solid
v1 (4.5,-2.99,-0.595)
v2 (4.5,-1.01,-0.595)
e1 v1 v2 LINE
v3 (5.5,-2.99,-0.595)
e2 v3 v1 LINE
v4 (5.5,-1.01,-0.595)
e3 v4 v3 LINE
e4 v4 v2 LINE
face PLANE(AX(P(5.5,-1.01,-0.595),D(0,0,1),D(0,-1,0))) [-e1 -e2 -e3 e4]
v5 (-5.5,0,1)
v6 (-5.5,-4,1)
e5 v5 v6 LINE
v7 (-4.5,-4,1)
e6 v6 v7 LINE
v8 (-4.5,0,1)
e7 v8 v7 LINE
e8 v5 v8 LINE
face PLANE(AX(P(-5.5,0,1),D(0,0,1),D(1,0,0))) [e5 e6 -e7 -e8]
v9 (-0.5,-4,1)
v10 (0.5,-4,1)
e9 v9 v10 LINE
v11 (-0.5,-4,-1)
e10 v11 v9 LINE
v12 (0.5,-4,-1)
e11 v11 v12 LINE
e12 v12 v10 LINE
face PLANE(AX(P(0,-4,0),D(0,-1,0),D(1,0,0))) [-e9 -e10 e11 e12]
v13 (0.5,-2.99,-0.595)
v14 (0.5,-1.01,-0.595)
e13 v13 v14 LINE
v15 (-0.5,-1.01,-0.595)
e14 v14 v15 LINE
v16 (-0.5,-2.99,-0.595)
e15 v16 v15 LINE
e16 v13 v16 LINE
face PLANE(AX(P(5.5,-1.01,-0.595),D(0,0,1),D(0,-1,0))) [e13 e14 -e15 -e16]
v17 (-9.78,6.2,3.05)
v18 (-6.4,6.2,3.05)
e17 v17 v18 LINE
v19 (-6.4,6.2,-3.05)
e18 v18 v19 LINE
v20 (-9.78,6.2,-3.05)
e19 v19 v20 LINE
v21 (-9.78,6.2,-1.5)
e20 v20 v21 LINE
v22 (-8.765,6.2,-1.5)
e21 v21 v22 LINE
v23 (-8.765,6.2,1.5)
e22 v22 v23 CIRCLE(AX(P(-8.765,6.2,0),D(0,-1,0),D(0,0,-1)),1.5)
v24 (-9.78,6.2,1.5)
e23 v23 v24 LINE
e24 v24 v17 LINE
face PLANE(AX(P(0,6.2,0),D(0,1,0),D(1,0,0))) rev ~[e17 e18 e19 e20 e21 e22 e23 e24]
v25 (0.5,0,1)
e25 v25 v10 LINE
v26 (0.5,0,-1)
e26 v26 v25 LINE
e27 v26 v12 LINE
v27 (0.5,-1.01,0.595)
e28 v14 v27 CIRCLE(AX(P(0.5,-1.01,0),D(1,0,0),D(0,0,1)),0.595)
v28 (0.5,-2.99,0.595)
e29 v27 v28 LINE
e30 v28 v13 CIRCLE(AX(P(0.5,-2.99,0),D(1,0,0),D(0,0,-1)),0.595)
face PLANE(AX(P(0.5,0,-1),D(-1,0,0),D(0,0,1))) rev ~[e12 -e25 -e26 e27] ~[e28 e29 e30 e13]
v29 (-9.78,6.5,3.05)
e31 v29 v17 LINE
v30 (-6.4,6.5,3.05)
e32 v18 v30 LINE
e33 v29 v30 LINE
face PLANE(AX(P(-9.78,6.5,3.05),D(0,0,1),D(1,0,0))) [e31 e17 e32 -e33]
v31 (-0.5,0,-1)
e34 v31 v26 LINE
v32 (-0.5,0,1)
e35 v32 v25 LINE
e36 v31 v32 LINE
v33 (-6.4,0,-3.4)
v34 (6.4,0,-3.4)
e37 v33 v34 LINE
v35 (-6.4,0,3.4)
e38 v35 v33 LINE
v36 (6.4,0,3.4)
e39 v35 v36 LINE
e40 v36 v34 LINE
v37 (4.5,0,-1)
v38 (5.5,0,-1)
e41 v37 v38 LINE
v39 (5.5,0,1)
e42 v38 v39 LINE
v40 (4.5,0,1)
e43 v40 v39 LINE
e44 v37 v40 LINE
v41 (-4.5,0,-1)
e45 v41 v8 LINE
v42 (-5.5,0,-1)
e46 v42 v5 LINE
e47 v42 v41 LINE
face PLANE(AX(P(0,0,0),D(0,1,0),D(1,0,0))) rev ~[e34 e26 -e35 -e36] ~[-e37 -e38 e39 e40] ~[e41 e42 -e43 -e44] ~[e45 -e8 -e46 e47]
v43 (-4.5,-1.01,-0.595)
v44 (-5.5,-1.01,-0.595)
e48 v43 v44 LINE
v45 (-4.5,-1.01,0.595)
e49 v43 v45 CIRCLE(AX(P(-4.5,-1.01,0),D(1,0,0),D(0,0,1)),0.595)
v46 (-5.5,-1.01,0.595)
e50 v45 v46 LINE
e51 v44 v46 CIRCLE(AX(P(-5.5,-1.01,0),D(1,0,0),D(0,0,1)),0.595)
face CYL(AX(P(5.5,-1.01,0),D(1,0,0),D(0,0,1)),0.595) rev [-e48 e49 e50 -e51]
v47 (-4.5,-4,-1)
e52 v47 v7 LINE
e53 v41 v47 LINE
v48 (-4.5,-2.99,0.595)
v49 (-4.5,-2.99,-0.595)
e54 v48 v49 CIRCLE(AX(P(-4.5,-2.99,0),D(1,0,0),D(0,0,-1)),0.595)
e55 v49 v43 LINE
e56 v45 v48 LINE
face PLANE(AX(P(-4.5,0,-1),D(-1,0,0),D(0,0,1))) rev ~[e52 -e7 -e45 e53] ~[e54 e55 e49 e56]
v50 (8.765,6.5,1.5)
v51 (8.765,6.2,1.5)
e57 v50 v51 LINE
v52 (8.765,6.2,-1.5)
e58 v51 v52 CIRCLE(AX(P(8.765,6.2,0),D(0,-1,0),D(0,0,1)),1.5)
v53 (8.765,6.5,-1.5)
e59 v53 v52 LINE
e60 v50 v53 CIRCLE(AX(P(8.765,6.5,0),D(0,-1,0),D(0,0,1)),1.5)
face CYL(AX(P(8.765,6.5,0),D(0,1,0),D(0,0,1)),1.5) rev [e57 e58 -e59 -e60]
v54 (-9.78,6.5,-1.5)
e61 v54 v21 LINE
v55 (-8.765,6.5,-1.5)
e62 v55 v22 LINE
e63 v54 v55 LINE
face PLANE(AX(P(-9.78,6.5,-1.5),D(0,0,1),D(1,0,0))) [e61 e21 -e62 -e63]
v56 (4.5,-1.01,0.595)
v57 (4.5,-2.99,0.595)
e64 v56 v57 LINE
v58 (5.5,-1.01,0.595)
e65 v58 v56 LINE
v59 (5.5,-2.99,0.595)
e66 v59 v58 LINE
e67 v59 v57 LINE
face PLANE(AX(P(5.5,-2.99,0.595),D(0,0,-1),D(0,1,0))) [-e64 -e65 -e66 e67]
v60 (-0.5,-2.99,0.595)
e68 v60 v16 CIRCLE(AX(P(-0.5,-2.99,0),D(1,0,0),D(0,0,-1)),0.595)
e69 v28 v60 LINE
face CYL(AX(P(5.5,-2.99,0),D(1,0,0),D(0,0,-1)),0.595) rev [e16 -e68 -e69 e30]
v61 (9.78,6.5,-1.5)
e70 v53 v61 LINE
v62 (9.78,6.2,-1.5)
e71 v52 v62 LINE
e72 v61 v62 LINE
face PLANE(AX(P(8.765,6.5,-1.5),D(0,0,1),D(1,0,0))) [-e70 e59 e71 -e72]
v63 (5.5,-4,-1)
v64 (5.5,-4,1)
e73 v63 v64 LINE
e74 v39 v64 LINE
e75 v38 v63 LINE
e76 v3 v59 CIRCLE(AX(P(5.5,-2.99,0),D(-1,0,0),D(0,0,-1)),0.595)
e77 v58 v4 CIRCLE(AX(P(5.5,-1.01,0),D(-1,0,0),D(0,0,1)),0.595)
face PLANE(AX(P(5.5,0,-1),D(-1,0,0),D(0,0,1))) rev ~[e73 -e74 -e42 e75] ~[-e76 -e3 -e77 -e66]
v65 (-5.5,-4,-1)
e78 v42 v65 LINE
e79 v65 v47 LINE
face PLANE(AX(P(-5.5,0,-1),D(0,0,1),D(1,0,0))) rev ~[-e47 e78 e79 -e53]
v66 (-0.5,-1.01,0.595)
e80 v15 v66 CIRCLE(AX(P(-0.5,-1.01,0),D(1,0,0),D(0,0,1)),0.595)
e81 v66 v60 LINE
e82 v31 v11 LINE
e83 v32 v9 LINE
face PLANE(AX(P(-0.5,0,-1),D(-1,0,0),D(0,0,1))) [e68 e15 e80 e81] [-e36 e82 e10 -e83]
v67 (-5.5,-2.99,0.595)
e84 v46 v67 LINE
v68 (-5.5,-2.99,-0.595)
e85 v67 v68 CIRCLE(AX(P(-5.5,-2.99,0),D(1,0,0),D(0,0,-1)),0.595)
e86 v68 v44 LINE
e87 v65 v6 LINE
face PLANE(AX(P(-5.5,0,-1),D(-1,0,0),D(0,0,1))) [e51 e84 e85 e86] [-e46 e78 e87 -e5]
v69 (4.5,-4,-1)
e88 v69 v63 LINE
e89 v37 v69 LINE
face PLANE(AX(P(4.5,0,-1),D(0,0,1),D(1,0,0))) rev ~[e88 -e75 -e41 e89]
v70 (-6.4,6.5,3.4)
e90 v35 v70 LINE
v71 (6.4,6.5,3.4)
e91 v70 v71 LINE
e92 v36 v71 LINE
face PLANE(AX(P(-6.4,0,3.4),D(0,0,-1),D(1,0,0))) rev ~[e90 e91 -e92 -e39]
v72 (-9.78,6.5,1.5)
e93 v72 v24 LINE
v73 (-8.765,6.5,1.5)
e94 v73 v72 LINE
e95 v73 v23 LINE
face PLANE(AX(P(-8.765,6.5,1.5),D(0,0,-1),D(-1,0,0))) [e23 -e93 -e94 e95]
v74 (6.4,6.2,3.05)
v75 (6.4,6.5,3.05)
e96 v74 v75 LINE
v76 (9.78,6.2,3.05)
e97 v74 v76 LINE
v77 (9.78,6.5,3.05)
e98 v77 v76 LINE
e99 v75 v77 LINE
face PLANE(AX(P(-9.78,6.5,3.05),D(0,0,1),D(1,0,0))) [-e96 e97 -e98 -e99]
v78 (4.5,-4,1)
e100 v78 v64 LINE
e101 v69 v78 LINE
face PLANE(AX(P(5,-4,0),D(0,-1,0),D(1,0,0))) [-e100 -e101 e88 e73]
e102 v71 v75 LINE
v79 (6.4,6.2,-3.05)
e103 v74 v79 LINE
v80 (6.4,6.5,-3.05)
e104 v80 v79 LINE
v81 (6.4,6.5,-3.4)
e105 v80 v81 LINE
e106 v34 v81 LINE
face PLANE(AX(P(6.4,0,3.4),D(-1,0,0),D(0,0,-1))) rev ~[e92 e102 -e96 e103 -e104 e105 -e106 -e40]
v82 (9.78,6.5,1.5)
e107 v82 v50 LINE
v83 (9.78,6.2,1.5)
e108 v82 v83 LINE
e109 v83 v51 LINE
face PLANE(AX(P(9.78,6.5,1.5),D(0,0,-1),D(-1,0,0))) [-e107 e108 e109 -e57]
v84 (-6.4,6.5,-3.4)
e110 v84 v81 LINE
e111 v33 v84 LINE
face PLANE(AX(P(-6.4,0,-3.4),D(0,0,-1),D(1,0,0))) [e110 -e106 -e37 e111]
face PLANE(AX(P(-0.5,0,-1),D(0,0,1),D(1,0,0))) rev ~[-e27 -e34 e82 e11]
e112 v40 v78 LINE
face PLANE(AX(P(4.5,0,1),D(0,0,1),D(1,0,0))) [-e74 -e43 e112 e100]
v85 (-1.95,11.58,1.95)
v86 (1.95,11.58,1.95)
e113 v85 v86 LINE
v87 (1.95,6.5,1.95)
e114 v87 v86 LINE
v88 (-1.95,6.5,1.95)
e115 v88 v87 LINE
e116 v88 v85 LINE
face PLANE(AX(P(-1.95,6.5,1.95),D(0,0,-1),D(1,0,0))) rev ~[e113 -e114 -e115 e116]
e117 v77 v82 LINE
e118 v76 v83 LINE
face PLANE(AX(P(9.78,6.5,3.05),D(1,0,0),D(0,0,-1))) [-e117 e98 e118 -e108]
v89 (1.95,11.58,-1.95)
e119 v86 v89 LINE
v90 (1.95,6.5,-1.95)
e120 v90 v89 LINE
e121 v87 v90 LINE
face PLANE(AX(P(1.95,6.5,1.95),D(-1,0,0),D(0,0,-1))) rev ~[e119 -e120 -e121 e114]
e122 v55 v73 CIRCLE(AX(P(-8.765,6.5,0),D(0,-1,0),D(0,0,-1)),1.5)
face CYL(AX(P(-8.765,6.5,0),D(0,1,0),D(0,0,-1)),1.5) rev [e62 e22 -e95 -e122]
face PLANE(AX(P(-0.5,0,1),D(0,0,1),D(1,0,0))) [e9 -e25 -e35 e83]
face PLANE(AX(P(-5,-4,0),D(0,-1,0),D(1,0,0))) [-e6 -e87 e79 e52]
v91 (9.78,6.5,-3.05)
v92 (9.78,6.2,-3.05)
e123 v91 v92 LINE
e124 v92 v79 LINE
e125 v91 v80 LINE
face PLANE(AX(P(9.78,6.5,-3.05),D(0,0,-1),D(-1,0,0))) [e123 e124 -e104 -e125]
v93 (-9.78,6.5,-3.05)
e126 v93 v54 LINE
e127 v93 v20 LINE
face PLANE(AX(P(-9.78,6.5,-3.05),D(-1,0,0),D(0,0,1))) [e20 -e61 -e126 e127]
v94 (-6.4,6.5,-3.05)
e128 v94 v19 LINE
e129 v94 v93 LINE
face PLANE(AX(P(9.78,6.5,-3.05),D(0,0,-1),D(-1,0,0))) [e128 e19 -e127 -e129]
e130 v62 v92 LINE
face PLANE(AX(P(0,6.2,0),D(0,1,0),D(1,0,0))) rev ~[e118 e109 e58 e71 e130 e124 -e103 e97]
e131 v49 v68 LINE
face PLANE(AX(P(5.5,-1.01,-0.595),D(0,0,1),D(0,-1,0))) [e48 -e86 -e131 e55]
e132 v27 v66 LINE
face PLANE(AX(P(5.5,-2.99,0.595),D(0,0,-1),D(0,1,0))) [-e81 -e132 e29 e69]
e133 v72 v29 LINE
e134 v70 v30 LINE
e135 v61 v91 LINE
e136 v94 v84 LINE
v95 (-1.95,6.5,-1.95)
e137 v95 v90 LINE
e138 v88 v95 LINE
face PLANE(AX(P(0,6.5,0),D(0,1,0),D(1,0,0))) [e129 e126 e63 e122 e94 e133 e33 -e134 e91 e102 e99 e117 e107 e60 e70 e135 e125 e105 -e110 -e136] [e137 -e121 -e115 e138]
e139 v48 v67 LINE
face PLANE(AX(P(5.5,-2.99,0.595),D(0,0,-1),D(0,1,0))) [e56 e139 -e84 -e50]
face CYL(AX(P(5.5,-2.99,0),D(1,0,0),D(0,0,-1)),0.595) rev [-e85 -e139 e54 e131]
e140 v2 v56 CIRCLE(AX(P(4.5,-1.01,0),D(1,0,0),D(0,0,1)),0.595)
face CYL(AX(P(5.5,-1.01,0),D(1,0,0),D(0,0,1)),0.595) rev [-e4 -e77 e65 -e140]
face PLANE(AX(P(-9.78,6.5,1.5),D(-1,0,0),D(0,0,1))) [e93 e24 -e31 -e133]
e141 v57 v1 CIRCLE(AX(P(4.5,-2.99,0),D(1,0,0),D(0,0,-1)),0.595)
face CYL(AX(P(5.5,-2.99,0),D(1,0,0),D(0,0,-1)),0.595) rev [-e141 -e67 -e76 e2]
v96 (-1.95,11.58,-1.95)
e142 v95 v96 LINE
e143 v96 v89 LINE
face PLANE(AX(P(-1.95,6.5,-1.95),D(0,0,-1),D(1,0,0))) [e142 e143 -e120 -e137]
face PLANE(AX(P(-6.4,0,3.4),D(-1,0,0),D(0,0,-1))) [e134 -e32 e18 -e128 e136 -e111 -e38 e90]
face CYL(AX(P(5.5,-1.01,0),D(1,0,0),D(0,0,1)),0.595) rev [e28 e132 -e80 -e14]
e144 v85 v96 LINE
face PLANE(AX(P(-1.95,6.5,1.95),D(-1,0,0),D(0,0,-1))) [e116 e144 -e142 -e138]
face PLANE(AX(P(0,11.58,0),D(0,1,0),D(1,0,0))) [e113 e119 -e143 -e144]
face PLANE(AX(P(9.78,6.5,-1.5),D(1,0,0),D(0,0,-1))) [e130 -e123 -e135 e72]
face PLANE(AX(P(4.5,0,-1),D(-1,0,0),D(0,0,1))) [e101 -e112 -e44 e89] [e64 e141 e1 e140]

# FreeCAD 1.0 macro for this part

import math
import FreeCAD as App
import Part
import Sketcher
Q = App.Units.Quantity

doc = App.newDocument("Part")
body = doc.addObject("PartDesign::Body", "Body")

sketch1 = body.newObject("Sketcher::SketchObject", "Sketch")
sketch1.AttachmentSupport = (doc.getObject("XZ_Plane"), [""])
sketch1.MapMode = "FlatFace"
sketch1.addGeometry([
    Part.LineSegment(App.Vector(-6, -3, 0), App.Vector(-6, 3, 0)),
    Part.LineSegment(App.Vector(-6, 3, 0), App.Vector(6, 3, 0)),
    Part.LineSegment(App.Vector(6, 3, 0), App.Vector(6, -3, 0)),
    Part.LineSegment(App.Vector(6, -3, 0), App.Vector(-6, -3, 0)),
], False)
sketch1.addConstraint([
    Sketcher.Constraint("Coincident", 0, 2, 1, 1),
    Sketcher.Constraint("Coincident", 1, 2, 2, 1),
    Sketcher.Constraint("Coincident", 2, 2, 3, 1),
    Sketcher.Constraint("Coincident", 3, 2, 0, 1),
    Sketcher.Constraint("Vertical", 0),
    Sketcher.Constraint("Horizontal", 1),
    Sketcher.Constraint("Vertical", 2),
    Sketcher.Constraint("Horizontal", 3),
    Sketcher.Constraint("Symmetric", 0, 2, 2, 2, -1, 1),
    Sketcher.Constraint("DistanceX", 1, 1, 1, 2, Q("12.8 mm")),
    Sketcher.Constraint("DistanceY", 0, 1, 0, 2, Q("6.8 mm")),
])
pad1 = body.newObject("PartDesign::Pad", "Pad")
pad1.Profile = sketch1
pad1.Length = 6.5
pad1.Reversed = True

sketch2 = body.newObject("Sketcher::SketchObject", "Sketch001")
sketch2.AttachmentSupport = (doc.getObject("XZ_Plane"), [""])
sketch2.MapMode = "FlatFace"
sketch2.AttachmentOffset = App.Placement(App.Vector(0, 0, -6.5), App.Rotation())
sketch2.addGeometry([
    Part.LineSegment(App.Vector(9.8, -3, 0), App.Vector(-9.8, -3, 0)),
    Part.LineSegment(App.Vector(-9.8, -3, 0), App.Vector(-9.8, -1.5, 0)),
    Part.LineSegment(App.Vector(-9.8, -1.5, 0), App.Vector(-8.8, -1.5, 0)),
    Part.ArcOfCircle(Part.Circle(App.Vector(-8.8, 0, 0), App.Vector(0, 0, 1), 1.5), math.radians(-90), math.radians(90)),
    Part.LineSegment(App.Vector(-8.8, 1.5, 0), App.Vector(-9.8, 1.5, 0)),
    Part.LineSegment(App.Vector(-9.8, 1.5, 0), App.Vector(-9.8, 3, 0)),
    Part.LineSegment(App.Vector(-9.8, 3, 0), App.Vector(9.8, 3, 0)),
    Part.LineSegment(App.Vector(9.8, 3, 0), App.Vector(9.8, 1.5, 0)),
    Part.LineSegment(App.Vector(9.8, 1.5, 0), App.Vector(8.8, 1.5, 0)),
    Part.ArcOfCircle(Part.Circle(App.Vector(8.8, 0, 0), App.Vector(0, 0, 1), 1.5), math.radians(90), math.radians(270)),
    Part.LineSegment(App.Vector(8.8, -1.5, 0), App.Vector(9.8, -1.5, 0)),
    Part.LineSegment(App.Vector(9.8, -1.5, 0), App.Vector(9.8, -3, 0)),
], False)
sketch2.addConstraint([
    Sketcher.Constraint("Coincident", 0, 2, 1, 1),
    Sketcher.Constraint("Coincident", 1, 2, 2, 1),
    Sketcher.Constraint("Tangent", 2, 2, 3, 1),
    Sketcher.Constraint("Tangent", 3, 2, 4, 1),
    Sketcher.Constraint("Coincident", 4, 2, 5, 1),
    Sketcher.Constraint("Coincident", 5, 2, 6, 1),
    Sketcher.Constraint("Coincident", 6, 2, 7, 1),
    Sketcher.Constraint("Coincident", 7, 2, 8, 1),
    Sketcher.Constraint("Tangent", 8, 2, 9, 1),
    Sketcher.Constraint("Tangent", 9, 2, 10, 1),
    Sketcher.Constraint("Coincident", 10, 2, 11, 1),
    Sketcher.Constraint("Coincident", 11, 2, 0, 1),
    Sketcher.Constraint("Horizontal", 0),
    Sketcher.Constraint("Vertical", 1),
    Sketcher.Constraint("Horizontal", 2),
    Sketcher.Constraint("Horizontal", 4),
    Sketcher.Constraint("Vertical", 5),
    Sketcher.Constraint("Horizontal", 6),
    Sketcher.Constraint("Vertical", 7),
    Sketcher.Constraint("Horizontal", 8),
    Sketcher.Constraint("Horizontal", 10),
    Sketcher.Constraint("Vertical", 11),
    Sketcher.Constraint("Equal", 3, 9),
    Sketcher.Constraint("Symmetric", 3, 3, 9, 3, -1, 1),
    Sketcher.Constraint("Symmetric", 0, 2, 6, 2, -1, 1),
    Sketcher.Constraint("Symmetric", 4, 2, 7, 2, -2),
    Sketcher.Constraint("Vertical", 7, 2, 10, 2),
    Sketcher.Constraint("Radius", 3, Q("1.5 mm")),
    Sketcher.Constraint("DistanceX", 0, 2, 0, 1, Q("19.56 mm")),
    Sketcher.Constraint("DistanceY", 1, 1, 1, 2, Q("1.55 mm")),
    Sketcher.Constraint("DistanceX", 2, 1, 2, 2, Q("1.015 mm")),
])
pad2 = body.newObject("PartDesign::Pad", "Pad001")
pad2.Profile = sketch2
pad2.Length = 0.3

sketch3 = body.newObject("Sketcher::SketchObject", "Sketch002")
sketch3.AttachmentSupport = (doc.getObject("XZ_Plane"), [""])
sketch3.MapMode = "FlatFace"
sketch3.AttachmentOffset = App.Placement(App.Vector(0, 0, -6.5), App.Rotation())
sketch3.addGeometry([
    Part.LineSegment(App.Vector(-1.9, -1.9, 0), App.Vector(-1.9, 1.9, 0)),
    Part.LineSegment(App.Vector(-1.9, 1.9, 0), App.Vector(1.9, 1.9, 0)),
    Part.LineSegment(App.Vector(1.9, 1.9, 0), App.Vector(1.9, -1.9, 0)),
    Part.LineSegment(App.Vector(1.9, -1.9, 0), App.Vector(-1.9, -1.9, 0)),
], False)
sketch3.addConstraint([
    Sketcher.Constraint("Coincident", 0, 2, 1, 1),
    Sketcher.Constraint("Coincident", 1, 2, 2, 1),
    Sketcher.Constraint("Coincident", 2, 2, 3, 1),
    Sketcher.Constraint("Coincident", 3, 2, 0, 1),
    Sketcher.Constraint("Vertical", 0),
    Sketcher.Constraint("Horizontal", 1),
    Sketcher.Constraint("Vertical", 2),
    Sketcher.Constraint("Horizontal", 3),
    Sketcher.Constraint("Symmetric", 0, 2, 2, 2, -1, 1),
    Sketcher.Constraint("Equal", 3, 0),
    Sketcher.Constraint("DistanceX", 1, 1, 1, 2, Q("3.9 mm")),
])
pad3 = body.newObject("PartDesign::Pad", "Pad002")
pad3.Profile = sketch3
pad3.Length = 5.08
pad3.Reversed = True

sketch4 = body.newObject("Sketcher::SketchObject", "Sketch003")
sketch4.AttachmentSupport = (doc.getObject("XZ_Plane"), [""])
sketch4.MapMode = "FlatFace"
sketch4.addGeometry([
    Part.LineSegment(App.Vector(-0.5, 1, 0), App.Vector(-0.5, -1, 0)),
    Part.LineSegment(App.Vector(-0.5, -1, 0), App.Vector(0.5, -1, 0)),
    Part.LineSegment(App.Vector(0.5, -1, 0), App.Vector(0.5, 1, 0)),
    Part.LineSegment(App.Vector(0.5, 1, 0), App.Vector(-0.5, 1, 0)),
    Part.LineSegment(App.Vector(4.5, 1, 0), App.Vector(4.5, -1, 0)),
    Part.LineSegment(App.Vector(4.5, -1, 0), App.Vector(5.5, -1, 0)),
    Part.LineSegment(App.Vector(5.5, -1, 0), App.Vector(5.5, 1, 0)),
    Part.LineSegment(App.Vector(5.5, 1, 0), App.Vector(4.5, 1, 0)),
    Part.LineSegment(App.Vector(-5.5, 1, 0), App.Vector(-5.5, -1, 0)),
    Part.LineSegment(App.Vector(-5.5, -1, 0), App.Vector(-4.5, -1, 0)),
    Part.LineSegment(App.Vector(-4.5, -1, 0), App.Vector(-4.5, 1, 0)),
    Part.LineSegment(App.Vector(-4.5, 1, 0), App.Vector(-5.5, 1, 0)),
], False)
sketch4.addConstraint([
    Sketcher.Constraint("Coincident", 0, 2, 1, 1),
    Sketcher.Constraint("Coincident", 1, 2, 2, 1),
    Sketcher.Constraint("Coincident", 2, 2, 3, 1),
    Sketcher.Constraint("Coincident", 3, 2, 0, 1),
    Sketcher.Constraint("Coincident", 4, 2, 5, 1),
    Sketcher.Constraint("Coincident", 5, 2, 6, 1),
    Sketcher.Constraint("Coincident", 6, 2, 7, 1),
    Sketcher.Constraint("Coincident", 7, 2, 4, 1),
    Sketcher.Constraint("Coincident", 8, 2, 9, 1),
    Sketcher.Constraint("Coincident", 9, 2, 10, 1),
    Sketcher.Constraint("Coincident", 10, 2, 11, 1),
    Sketcher.Constraint("Coincident", 11, 2, 8, 1),
    Sketcher.Constraint("Vertical", 0),
    Sketcher.Constraint("Horizontal", 1),
    Sketcher.Constraint("Vertical", 2),
    Sketcher.Constraint("Horizontal", 3),
    Sketcher.Constraint("Vertical", 4),
    Sketcher.Constraint("Horizontal", 5),
    Sketcher.Constraint("Vertical", 6),
    Sketcher.Constraint("Horizontal", 7),
    Sketcher.Constraint("Vertical", 8),
    Sketcher.Constraint("Horizontal", 9),
    Sketcher.Constraint("Vertical", 10),
    Sketcher.Constraint("Horizontal", 11),
    Sketcher.Constraint("Symmetric", 0, 2, 2, 2, -1, 1),
    Sketcher.Constraint("Symmetric", 6, 2, 8, 2, -1, 1),
    Sketcher.Constraint("Symmetric", 4, 2, 10, 2, -1, 1),
    Sketcher.Constraint("Horizontal", 1, 2, 4, 2),
    Sketcher.Constraint("Horizontal", 3, 2, 6, 2),
    Sketcher.Constraint("Equal", 3, 5),
    Sketcher.Constraint("DistanceX", 1, 1, 1, 2, Q("1 mm")),
    Sketcher.Constraint("DistanceY", 0, 2, 0, 1, Q("2 mm")),
    Sketcher.Constraint("DistanceX", 1, 2, 4, 2, Q("4 mm")),
])
pad4 = body.newObject("PartDesign::Pad", "Pad003")
pad4.Profile = sketch4
pad4.Length = 4

sketch5 = body.newObject("Sketcher::SketchObject", "Sketch004")
sketch5.AttachmentSupport = (doc.getObject("YZ_Plane"), [""])
sketch5.MapMode = "FlatFace"
sketch5.AttachmentOffset = App.Placement(App.Vector(0, 0, 5.5), App.Rotation())
sketch5.addGeometry([
    Part.LineSegment(App.Vector(-3, -0.6, 0), App.Vector(-1, -0.6, 0)),
    Part.ArcOfCircle(Part.Circle(App.Vector(-1, 0, 0), App.Vector(0, 0, 1), 0.6), math.radians(-90), math.radians(90)),
    Part.LineSegment(App.Vector(-1, 0.6, 0), App.Vector(-3, 0.6, 0)),
    Part.ArcOfCircle(Part.Circle(App.Vector(-3, 0, 0), App.Vector(0, 0, 1), 0.6), math.radians(90), math.radians(270)),
], False)
sketch5.addConstraint([
    Sketcher.Constraint("Tangent", 0, 2, 1, 1),
    Sketcher.Constraint("Tangent", 1, 2, 2, 1),
    Sketcher.Constraint("Tangent", 2, 2, 3, 1),
    Sketcher.Constraint("Tangent", 3, 2, 0, 1),
    Sketcher.Constraint("Horizontal", 0),
    Sketcher.Constraint("Horizontal", 2),
    Sketcher.Constraint("PointOnObject", 1, 3, -1),
    Sketcher.Constraint("Radius", 1, Q("0.595 mm")),
    Sketcher.Constraint("DistanceX", 0, 1, 0, 2, Q("1.98 mm")),
    Sketcher.Constraint("DistanceX", 1, 3, -1, 1, Q("1.01 mm")),
])
pocket1 = body.newObject("PartDesign::Pocket", "Pocket")
pocket1.Profile = sketch5
pocket1.Type = "ThroughAll"

doc.recompute()
